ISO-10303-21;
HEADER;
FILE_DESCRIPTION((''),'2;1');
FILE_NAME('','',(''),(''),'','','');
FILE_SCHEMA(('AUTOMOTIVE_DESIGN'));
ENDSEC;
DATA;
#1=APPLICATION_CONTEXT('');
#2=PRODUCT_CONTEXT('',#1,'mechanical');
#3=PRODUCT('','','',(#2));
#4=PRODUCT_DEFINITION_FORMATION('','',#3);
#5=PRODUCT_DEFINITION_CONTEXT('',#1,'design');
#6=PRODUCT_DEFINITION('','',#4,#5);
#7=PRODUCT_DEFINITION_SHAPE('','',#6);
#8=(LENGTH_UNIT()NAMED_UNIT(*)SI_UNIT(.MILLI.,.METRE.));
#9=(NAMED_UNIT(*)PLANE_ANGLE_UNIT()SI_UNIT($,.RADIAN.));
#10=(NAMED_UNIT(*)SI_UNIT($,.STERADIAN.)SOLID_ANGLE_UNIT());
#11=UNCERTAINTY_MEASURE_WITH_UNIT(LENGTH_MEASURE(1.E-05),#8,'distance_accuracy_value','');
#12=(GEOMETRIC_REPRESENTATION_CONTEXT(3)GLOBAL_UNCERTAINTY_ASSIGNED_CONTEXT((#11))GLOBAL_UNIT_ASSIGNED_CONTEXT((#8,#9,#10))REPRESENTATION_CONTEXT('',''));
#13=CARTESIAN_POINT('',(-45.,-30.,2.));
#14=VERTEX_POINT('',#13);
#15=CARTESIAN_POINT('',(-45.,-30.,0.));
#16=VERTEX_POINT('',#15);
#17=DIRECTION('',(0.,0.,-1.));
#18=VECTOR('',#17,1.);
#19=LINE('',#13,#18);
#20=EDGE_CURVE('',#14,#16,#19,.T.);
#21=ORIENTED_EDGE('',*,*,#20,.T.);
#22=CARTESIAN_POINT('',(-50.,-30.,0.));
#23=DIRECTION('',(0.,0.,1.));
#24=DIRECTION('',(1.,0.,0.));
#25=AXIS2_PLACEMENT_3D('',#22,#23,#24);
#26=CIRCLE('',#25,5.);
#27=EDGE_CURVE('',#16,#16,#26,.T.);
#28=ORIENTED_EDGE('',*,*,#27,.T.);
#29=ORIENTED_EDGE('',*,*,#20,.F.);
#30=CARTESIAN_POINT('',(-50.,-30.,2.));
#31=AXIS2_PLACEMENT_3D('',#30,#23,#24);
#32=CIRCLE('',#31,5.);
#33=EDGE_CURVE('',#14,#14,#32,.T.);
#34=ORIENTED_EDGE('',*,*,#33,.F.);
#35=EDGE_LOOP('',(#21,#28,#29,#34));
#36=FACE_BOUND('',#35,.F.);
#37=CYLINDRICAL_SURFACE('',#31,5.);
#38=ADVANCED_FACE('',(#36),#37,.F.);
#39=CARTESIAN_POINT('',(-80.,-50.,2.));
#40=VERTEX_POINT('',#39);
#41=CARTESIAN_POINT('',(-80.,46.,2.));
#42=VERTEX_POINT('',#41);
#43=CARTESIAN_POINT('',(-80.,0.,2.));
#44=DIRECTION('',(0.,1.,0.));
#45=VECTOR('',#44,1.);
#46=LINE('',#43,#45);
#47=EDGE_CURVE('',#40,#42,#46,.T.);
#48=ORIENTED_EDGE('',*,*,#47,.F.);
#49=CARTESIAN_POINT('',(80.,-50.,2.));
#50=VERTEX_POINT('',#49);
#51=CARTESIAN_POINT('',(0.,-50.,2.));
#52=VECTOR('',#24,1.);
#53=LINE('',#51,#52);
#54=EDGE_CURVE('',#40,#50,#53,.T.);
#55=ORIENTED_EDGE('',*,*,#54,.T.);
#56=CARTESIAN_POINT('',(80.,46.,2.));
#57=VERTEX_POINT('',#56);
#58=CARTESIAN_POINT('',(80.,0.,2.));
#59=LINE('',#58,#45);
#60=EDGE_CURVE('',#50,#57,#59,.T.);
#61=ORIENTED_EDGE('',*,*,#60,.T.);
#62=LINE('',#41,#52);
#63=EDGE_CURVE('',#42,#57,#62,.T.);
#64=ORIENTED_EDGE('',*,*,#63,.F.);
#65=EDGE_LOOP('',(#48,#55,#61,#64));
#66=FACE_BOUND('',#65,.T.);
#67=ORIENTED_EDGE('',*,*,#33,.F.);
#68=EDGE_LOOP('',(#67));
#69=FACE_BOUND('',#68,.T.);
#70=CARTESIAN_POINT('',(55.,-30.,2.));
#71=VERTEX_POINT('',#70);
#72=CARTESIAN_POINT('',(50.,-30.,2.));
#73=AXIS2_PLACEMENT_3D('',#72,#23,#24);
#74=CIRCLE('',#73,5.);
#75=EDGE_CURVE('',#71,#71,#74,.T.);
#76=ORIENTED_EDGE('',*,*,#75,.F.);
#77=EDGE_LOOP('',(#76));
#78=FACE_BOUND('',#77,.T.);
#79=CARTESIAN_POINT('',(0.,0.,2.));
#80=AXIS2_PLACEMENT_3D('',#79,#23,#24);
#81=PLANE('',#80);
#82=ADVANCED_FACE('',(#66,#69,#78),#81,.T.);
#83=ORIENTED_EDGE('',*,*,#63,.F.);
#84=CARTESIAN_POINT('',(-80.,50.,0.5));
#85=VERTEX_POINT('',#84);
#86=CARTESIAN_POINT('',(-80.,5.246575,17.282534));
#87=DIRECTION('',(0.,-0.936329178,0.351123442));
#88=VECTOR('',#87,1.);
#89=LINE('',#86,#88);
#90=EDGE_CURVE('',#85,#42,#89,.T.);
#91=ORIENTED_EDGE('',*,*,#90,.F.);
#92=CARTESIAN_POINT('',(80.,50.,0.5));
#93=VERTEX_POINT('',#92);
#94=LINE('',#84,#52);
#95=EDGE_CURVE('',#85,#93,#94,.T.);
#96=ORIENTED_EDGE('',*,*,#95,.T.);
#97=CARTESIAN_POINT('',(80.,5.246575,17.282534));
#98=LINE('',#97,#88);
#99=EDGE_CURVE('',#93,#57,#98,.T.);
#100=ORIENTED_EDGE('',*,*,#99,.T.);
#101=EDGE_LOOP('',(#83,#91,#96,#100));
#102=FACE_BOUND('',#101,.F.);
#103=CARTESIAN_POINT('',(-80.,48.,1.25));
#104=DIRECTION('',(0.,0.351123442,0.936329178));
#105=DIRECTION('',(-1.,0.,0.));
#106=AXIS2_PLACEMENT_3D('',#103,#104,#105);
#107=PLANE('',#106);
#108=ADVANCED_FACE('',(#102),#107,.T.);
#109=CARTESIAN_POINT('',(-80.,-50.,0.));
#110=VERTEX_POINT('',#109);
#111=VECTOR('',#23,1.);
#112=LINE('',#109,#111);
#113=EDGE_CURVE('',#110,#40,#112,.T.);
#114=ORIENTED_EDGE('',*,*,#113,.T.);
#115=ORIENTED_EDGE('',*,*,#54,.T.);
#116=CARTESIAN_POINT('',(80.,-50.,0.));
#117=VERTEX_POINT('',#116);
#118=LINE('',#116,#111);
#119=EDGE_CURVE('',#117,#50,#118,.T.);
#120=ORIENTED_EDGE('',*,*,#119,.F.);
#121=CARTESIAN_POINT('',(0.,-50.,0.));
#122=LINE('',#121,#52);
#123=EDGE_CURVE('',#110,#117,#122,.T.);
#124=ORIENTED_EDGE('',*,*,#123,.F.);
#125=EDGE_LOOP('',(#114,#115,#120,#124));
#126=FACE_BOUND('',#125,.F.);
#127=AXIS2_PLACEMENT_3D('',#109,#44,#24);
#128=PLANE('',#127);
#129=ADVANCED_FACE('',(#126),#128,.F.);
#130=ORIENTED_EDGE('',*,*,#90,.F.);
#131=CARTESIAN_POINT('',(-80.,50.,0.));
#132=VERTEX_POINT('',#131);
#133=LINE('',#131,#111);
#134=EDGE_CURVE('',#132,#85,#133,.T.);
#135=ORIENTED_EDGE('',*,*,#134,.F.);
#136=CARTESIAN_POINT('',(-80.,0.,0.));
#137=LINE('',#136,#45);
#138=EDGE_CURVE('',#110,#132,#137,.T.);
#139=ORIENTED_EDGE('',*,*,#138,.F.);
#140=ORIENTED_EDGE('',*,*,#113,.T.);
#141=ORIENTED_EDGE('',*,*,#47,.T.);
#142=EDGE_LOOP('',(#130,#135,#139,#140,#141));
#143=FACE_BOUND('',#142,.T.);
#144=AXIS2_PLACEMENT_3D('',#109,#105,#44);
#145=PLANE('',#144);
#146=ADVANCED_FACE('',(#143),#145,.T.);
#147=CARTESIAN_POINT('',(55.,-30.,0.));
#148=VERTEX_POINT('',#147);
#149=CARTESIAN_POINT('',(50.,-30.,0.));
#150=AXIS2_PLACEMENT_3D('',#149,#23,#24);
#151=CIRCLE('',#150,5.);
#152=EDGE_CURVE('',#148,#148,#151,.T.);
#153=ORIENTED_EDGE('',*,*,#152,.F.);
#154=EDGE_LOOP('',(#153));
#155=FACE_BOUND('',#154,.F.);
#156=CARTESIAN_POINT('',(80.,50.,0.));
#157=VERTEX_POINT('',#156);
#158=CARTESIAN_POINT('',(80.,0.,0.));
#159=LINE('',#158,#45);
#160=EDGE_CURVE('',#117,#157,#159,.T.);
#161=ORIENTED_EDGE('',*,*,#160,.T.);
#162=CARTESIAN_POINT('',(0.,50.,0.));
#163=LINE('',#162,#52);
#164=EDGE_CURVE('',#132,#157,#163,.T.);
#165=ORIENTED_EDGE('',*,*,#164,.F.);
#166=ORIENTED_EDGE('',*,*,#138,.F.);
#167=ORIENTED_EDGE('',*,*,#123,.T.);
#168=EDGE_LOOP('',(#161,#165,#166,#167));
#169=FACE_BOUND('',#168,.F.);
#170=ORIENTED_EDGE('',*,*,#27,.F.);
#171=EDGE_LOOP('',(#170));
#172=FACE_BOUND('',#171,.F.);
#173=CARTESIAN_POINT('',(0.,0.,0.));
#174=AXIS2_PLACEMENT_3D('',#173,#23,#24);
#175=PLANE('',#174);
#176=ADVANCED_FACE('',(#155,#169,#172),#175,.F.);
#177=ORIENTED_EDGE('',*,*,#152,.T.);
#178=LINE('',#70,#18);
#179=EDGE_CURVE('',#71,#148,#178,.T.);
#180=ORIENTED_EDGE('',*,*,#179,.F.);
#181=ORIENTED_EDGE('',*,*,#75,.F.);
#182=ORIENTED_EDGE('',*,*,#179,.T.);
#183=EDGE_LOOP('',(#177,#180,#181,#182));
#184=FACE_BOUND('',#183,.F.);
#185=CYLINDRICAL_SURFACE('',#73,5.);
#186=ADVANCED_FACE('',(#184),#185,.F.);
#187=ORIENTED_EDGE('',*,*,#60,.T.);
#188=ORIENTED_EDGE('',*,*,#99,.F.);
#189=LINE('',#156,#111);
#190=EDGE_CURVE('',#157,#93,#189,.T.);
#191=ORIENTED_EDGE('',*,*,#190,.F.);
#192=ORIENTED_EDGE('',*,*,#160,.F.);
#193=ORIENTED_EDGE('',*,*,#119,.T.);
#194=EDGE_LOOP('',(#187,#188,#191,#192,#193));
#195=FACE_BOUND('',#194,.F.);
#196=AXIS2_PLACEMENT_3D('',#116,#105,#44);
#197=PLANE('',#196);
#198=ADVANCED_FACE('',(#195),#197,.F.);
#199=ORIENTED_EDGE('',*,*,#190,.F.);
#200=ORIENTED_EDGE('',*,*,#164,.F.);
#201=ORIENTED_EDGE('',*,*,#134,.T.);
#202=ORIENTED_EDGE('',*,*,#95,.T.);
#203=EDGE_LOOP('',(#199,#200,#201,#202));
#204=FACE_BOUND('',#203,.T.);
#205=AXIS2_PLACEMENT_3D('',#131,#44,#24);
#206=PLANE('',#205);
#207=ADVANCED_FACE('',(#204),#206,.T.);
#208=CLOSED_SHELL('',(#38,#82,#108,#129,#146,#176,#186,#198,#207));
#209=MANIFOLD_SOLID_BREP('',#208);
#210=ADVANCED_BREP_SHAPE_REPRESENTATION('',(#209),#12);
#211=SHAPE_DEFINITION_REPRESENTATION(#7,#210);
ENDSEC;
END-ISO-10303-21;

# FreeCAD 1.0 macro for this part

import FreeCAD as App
import Part
import Sketcher
Q = App.Units.Quantity


def edges_at(feature, points):
    """Names of the edges that pass closest to the given points."""
    edges = feature.Shape.Edges
    near = lambda p: min(range(len(edges)), key=lambda i: edges[i].distToShape(Part.Vertex(*p))[0])
    return sorted({f"Edge{near(p) + 1}" for p in points})

doc = App.newDocument("Part")
body = doc.addObject("PartDesign::Body", "Body")

# Sketch on XY plane
sketch1 = body.newObject("Sketcher::SketchObject", "Sketch")
sketch1.AttachmentSupport = (doc.getObject("XY_Plane"), [""])
sketch1.MapMode = "FlatFace"
sketch1.addGeometry([
    Part.LineSegment(App.Vector(-80, 50, 0), App.Vector(-80, -50, 0)),
    Part.LineSegment(App.Vector(-80, -50, 0), App.Vector(80, -50, 0)),
    Part.LineSegment(App.Vector(80, -50, 0), App.Vector(80, 50, 0)),
    Part.LineSegment(App.Vector(80, 50, 0), App.Vector(-80, 50, 0)),
], False)
sketch1.addConstraint([
    Sketcher.Constraint("Coincident", 0, 2, 1, 1),
    Sketcher.Constraint("Coincident", 1, 2, 2, 1),
    Sketcher.Constraint("Coincident", 2, 2, 3, 1),
    Sketcher.Constraint("Coincident", 3, 2, 0, 1),
    Sketcher.Constraint("Vertical", 0),
    Sketcher.Constraint("Horizontal", 1),
    Sketcher.Constraint("Vertical", 2),
    Sketcher.Constraint("Horizontal", 3),
    Sketcher.Constraint("Symmetric", 0, 2, 2, 2, -1, 1),
    Sketcher.Constraint("DistanceX", 1, 1, 1, 2, Q("160 mm")),
    Sketcher.Constraint("DistanceY", 0, 2, 0, 1, Q("100 mm")),
])
pad1 = body.newObject("PartDesign::Pad", "Pad")
pad1.Profile = sketch1
pad1.Length = 2
doc.recompute()

chamfer = body.newObject("PartDesign::Chamfer", "Chamfer")
chamfer.Base = (pad1, edges_at(pad1, [(0, 50, 2)]))
chamfer.ChamferType = "Two distances"
chamfer.Size = 1.5
chamfer.Size2 = 4

# Sketch on XY plane
sketch2 = body.newObject("Sketcher::SketchObject", "Sketch001")
sketch2.AttachmentSupport = (doc.getObject("XY_Plane"), [""])
sketch2.MapMode = "FlatFace"
sketch2.AttachmentOffset = App.Placement(App.Vector(0, 0, 2), App.Rotation())
sketch2.addGeometry([
    Part.Circle(App.Vector(-50, -30, 0), App.Vector(0, 0, 1), 5),
    Part.Circle(App.Vector(50, -30, 0), App.Vector(0, 0, 1), 5),
], False)
sketch2.addConstraint([
    Sketcher.Constraint("Equal", 0, 1),
    Sketcher.Constraint("Symmetric", 0, 3, 1, 3, -2),
    Sketcher.Constraint("Diameter", 0, Q("10 mm")),
    Sketcher.Constraint("DistanceX", 0, 3, -1, 1, Q("50 mm")),
    Sketcher.Constraint("DistanceY", 0, 3, -1, 1, Q("30 mm")),
])
pocket1 = body.newObject("PartDesign::Pocket", "Pocket")
pocket1.Profile = sketch2
pocket1.Length = 2

doc.recompute()
